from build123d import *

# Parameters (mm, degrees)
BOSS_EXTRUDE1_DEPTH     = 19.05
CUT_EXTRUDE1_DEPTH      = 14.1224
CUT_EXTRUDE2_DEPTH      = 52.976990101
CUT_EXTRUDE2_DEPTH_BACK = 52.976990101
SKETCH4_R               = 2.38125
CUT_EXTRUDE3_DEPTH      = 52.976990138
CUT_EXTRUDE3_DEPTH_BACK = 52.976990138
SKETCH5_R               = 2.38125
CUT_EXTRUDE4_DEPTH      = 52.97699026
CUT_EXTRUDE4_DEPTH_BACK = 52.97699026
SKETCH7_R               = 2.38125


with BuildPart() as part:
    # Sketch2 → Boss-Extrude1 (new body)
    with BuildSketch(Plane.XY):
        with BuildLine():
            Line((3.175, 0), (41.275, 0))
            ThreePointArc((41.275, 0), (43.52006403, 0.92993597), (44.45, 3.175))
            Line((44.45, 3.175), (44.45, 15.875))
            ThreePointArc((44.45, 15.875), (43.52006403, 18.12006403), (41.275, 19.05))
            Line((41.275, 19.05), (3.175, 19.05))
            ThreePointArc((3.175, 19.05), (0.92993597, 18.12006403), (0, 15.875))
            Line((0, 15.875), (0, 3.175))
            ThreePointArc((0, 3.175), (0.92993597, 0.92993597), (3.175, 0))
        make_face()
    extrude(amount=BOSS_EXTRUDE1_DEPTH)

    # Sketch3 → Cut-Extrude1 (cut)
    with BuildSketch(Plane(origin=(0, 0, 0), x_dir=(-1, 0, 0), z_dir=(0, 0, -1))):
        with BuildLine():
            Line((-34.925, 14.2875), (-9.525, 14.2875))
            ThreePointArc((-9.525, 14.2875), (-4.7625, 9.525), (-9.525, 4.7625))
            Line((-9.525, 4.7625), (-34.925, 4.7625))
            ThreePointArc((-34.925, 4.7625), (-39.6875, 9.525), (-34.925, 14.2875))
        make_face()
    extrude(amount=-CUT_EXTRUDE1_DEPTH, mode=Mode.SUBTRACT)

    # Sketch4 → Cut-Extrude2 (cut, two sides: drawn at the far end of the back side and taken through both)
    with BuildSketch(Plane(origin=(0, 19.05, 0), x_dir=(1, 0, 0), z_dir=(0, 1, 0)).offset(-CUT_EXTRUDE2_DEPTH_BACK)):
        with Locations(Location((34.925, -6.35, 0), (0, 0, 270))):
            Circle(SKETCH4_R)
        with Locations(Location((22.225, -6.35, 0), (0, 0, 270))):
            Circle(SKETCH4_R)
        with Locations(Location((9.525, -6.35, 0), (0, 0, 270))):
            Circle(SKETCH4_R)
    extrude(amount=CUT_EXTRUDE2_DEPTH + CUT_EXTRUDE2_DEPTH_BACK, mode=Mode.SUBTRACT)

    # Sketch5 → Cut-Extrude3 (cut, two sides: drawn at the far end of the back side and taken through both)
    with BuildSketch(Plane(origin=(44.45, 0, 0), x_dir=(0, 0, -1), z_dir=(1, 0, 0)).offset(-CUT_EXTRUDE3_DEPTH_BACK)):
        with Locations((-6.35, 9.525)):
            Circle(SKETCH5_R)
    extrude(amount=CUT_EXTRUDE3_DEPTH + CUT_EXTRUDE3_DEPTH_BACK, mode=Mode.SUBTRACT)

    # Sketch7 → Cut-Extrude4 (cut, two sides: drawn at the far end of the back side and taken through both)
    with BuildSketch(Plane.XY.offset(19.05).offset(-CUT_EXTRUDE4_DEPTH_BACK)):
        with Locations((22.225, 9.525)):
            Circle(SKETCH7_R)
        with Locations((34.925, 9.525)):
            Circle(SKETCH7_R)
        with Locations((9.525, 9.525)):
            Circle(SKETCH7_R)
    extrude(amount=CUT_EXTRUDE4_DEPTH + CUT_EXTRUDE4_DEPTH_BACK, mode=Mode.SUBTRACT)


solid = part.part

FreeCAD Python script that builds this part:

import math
import FreeCAD as App
import Part
import Sketcher
from FreeCAD import Vector
Q = App.Units.Quantity

doc = App.newDocument("Part")
body = doc.addObject("PartDesign::Body", "Body")

# Sketch on XY plane
sketch1 = body.newObject("Sketcher::SketchObject", "Sketch")
sketch1.AttachmentSupport = (doc.getObject("XY_Plane"), [""])
sketch1.MapMode = "FlatFace"
sketch1.addGeometry([
    Part.LineSegment(Vector(3.175, 0, 0), Vector(41.275, 0, 0)),  # 0
    Part.ArcOfCircle(Part.Circle(Vector(41.275, 3.175, 0), Vector(0, 0, 1), 3.175), math.radians(-90), math.radians(0)),  # 1
    Part.LineSegment(Vector(44.45, 3.175, 0), Vector(44.45, 15.875, 0)),  # 2
    Part.ArcOfCircle(Part.Circle(Vector(41.275, 15.875, 0), Vector(0, 0, 1), 3.175), math.radians(0), math.radians(90)),  # 3
    Part.LineSegment(Vector(41.275, 19.05, 0), Vector(3.175, 19.05, 0)),  # 4
    Part.ArcOfCircle(Part.Circle(Vector(3.175, 15.875, 0), Vector(0, 0, 1), 3.175), math.radians(90), math.radians(180)),  # 5
    Part.LineSegment(Vector(0, 15.875, 0), Vector(0, 3.175, 0)),  # 6
    Part.ArcOfCircle(Part.Circle(Vector(3.175, 3.175, 0), Vector(0, 0, 1), 3.175), math.radians(-180), math.radians(-90)),  # 7
], False)
sketch1.addConstraint([
    Sketcher.Constraint("Tangent", 0, 2, 1, 1),
    Sketcher.Constraint("Tangent", 1, 2, 2, 1),
    Sketcher.Constraint("Tangent", 2, 2, 3, 1),
    Sketcher.Constraint("Tangent", 3, 2, 4, 1),
    Sketcher.Constraint("Tangent", 4, 2, 5, 1),
    Sketcher.Constraint("Tangent", 5, 2, 6, 1),
    Sketcher.Constraint("Tangent", 6, 2, 7, 1),
    Sketcher.Constraint("Tangent", 7, 2, 0, 1),
    Sketcher.Constraint("Horizontal", 0),
    Sketcher.Constraint("Vertical", 2),
    Sketcher.Constraint("Horizontal", 4),
    Sketcher.Constraint("Vertical", 6),
    Sketcher.Constraint("Equal", 1, 3),
    Sketcher.Constraint("Equal", 3, 5),
    Sketcher.Constraint("Equal", 5, 7),
    Sketcher.Constraint("PointOnObject", 0, 2, -1),
    Sketcher.Constraint("PointOnObject", 5, 2, -2),
    Sketcher.Constraint("DistanceX", 0, 1, 0, 2, Q("1.5 in")),
    Sketcher.Constraint("DistanceY", 2, 1, 2, 2, Q("0.5 in")),
    Sketcher.Constraint("Radius", 1, Q("0.125 in")),
])
pad1 = body.newObject("PartDesign::Pad", "Pad")
pad1.Profile = sketch1
pad1.Length = Q("0.75 in")

# Sketch on XY plane
sketch2 = body.newObject("Sketcher::SketchObject", "Sketch001")
sketch2.AttachmentSupport = (doc.getObject("XY_Plane"), [""])
sketch2.MapMode = "FlatFace"
sketch2.addGeometry([
    Part.LineSegment(Vector(9.525, 14.2875, 0), Vector(34.925, 14.2875, 0)),
    Part.ArcOfCircle(Part.Circle(Vector(34.925, 9.525, 0), Vector(0, 0, 1), 4.7625), math.radians(-90), math.radians(90)),
    Part.LineSegment(Vector(34.925, 4.7625, 0), Vector(9.525, 4.7625, 0)),
    Part.ArcOfCircle(Part.Circle(Vector(9.525, 9.525, 0), Vector(0, 0, 1), 4.7625), math.radians(90), math.radians(270)),
], False)
sketch2.addConstraint([
    Sketcher.Constraint("Tangent", 0, 2, 1, 2),
    Sketcher.Constraint("Tangent", 1, 1, 2, 1),
    Sketcher.Constraint("Tangent", 2, 2, 3, 2),
    Sketcher.Constraint("Tangent", 3, 1, 0, 1),
    Sketcher.Constraint("Horizontal", 0),
    Sketcher.Constraint("Horizontal", 2),
    Sketcher.Constraint("DistanceX", 0, 1, 0, 2, Q("1 in")),
    Sketcher.Constraint("Radius", 1, Q("0.1875 in")),
    Sketcher.Constraint("DistanceX", -1, 1, 1, 3, Q("1.375 in")),
    Sketcher.Constraint("DistanceY", -1, 1, 1, 3, Q("0.375 in")),
])
pocket1 = body.newObject("PartDesign::Pocket", "Pocket")
pocket1.Profile = sketch2
pocket1.Length = Q("0.556 in")
pocket1.Reversed = True

# Sketch on XZ plane
sketch3 = body.newObject("Sketcher::SketchObject", "Sketch002")
sketch3.AttachmentSupport = (doc.getObject("XZ_Plane"), [""])
sketch3.MapMode = "FlatFace"
sketch3.AttachmentOffset = App.Placement(Vector(0, 0, -0.75 * 25.4), App.Rotation())
sketch3.addGeometry([
    Part.Circle(Vector(34.925, 6.35, 0), Vector(0, 0, 1), 2.38125),
    Part.Circle(Vector(22.225, 6.35, 0), Vector(0, 0, 1), 2.38125),
    Part.Circle(Vector(9.525, 6.35, 0), Vector(0, 0, 1), 2.38125),
], False)
sketch3.addConstraint([
    Sketcher.Constraint("Equal", 0, 1),
    Sketcher.Constraint("Equal", 1, 2),
    Sketcher.Constraint("Horizontal", 0, 3, 1, 3),
    Sketcher.Constraint("Horizontal", 1, 3, 2, 3),
    Sketcher.Constraint("Diameter", 0, Q("0.1875 in")),
    Sketcher.Constraint("DistanceX", 2, 3, 0, 3, Q("1 in")),
    Sketcher.Constraint("DistanceX", 1, 3, 0, 3, Q("0.5 in")),
    Sketcher.Constraint("DistanceY", -1, 1, 0, 3, Q("0.25 in")),
    Sketcher.Constraint("DistanceX", -1, 1, 0, 3, Q("1.375 in")),
])
pocket2 = body.newObject("PartDesign::Pocket", "Pocket001")
pocket2.Profile = sketch3
pocket2.Type = "ThroughAll"
pocket2.Midplane = True

# Sketch on YZ plane
sketch4 = body.newObject("Sketcher::SketchObject", "Sketch003")
sketch4.AttachmentSupport = (doc.getObject("YZ_Plane"), [""])
sketch4.MapMode = "FlatFace"
sketch4.AttachmentOffset = App.Placement(Vector(0, 0, 1.75 * 25.4), App.Rotation())
sketch4.addGeometry(Part.Circle(Vector(9.525, 6.35, 0), Vector(0, 0, 1), 2.38125), False)
sketch4.addConstraint([
    Sketcher.Constraint("Diameter", 0, Q("0.1875 in")),
    Sketcher.Constraint("DistanceY", -1, 1, 0, 3, Q("0.25 in")),
    Sketcher.Constraint("DistanceX", -1, 1, 0, 3, Q("0.375 in")),
])
pocket3 = body.newObject("PartDesign::Pocket", "Pocket002")
pocket3.Profile = sketch4
pocket3.Type = "ThroughAll"
pocket3.Midplane = True

# Sketch on XY plane
sketch5 = body.newObject("Sketcher::SketchObject", "Sketch004")
sketch5.AttachmentSupport = (doc.getObject("XY_Plane"), [""])
sketch5.MapMode = "FlatFace"
sketch5.AttachmentOffset = App.Placement(Vector(0, 0, 0.75 * 25.4), App.Rotation())
sketch5.addGeometry([
    Part.Circle(Vector(22.225, 9.525, 0), Vector(0, 0, 1), 2.38125),
    Part.Circle(Vector(34.925, 9.525, 0), Vector(0, 0, 1), 2.38125),
    Part.Circle(Vector(9.525, 9.525, 0), Vector(0, 0, 1), 2.38125),
], False)
sketch5.addConstraint([
    Sketcher.Constraint("Equal", 0, 1),
    Sketcher.Constraint("Equal", 1, 2),
    Sketcher.Constraint("Horizontal", 0, 3, 1, 3),
    Sketcher.Constraint("Horizontal", 1, 3, 2, 3),
    Sketcher.Constraint("Diameter", 0, Q("0.1875 in")),
    Sketcher.Constraint("DistanceX", 2, 3, 1, 3, Q("1 in")),
    Sketcher.Constraint("DistanceX", 0, 3, 1, 3, Q("0.5 in")),
    Sketcher.Constraint("DistanceX", -1, 1, 0, 3, Q("0.875 in")),
    Sketcher.Constraint("DistanceY", -1, 1, 0, 3, Q("0.375 in")),
])
pocket4 = body.newObject("PartDesign::Pocket", "Pocket003")
pocket4.Profile = sketch5
pocket4.Type = "ThroughAll"
pocket4.Midplane = True

doc.recompute()
